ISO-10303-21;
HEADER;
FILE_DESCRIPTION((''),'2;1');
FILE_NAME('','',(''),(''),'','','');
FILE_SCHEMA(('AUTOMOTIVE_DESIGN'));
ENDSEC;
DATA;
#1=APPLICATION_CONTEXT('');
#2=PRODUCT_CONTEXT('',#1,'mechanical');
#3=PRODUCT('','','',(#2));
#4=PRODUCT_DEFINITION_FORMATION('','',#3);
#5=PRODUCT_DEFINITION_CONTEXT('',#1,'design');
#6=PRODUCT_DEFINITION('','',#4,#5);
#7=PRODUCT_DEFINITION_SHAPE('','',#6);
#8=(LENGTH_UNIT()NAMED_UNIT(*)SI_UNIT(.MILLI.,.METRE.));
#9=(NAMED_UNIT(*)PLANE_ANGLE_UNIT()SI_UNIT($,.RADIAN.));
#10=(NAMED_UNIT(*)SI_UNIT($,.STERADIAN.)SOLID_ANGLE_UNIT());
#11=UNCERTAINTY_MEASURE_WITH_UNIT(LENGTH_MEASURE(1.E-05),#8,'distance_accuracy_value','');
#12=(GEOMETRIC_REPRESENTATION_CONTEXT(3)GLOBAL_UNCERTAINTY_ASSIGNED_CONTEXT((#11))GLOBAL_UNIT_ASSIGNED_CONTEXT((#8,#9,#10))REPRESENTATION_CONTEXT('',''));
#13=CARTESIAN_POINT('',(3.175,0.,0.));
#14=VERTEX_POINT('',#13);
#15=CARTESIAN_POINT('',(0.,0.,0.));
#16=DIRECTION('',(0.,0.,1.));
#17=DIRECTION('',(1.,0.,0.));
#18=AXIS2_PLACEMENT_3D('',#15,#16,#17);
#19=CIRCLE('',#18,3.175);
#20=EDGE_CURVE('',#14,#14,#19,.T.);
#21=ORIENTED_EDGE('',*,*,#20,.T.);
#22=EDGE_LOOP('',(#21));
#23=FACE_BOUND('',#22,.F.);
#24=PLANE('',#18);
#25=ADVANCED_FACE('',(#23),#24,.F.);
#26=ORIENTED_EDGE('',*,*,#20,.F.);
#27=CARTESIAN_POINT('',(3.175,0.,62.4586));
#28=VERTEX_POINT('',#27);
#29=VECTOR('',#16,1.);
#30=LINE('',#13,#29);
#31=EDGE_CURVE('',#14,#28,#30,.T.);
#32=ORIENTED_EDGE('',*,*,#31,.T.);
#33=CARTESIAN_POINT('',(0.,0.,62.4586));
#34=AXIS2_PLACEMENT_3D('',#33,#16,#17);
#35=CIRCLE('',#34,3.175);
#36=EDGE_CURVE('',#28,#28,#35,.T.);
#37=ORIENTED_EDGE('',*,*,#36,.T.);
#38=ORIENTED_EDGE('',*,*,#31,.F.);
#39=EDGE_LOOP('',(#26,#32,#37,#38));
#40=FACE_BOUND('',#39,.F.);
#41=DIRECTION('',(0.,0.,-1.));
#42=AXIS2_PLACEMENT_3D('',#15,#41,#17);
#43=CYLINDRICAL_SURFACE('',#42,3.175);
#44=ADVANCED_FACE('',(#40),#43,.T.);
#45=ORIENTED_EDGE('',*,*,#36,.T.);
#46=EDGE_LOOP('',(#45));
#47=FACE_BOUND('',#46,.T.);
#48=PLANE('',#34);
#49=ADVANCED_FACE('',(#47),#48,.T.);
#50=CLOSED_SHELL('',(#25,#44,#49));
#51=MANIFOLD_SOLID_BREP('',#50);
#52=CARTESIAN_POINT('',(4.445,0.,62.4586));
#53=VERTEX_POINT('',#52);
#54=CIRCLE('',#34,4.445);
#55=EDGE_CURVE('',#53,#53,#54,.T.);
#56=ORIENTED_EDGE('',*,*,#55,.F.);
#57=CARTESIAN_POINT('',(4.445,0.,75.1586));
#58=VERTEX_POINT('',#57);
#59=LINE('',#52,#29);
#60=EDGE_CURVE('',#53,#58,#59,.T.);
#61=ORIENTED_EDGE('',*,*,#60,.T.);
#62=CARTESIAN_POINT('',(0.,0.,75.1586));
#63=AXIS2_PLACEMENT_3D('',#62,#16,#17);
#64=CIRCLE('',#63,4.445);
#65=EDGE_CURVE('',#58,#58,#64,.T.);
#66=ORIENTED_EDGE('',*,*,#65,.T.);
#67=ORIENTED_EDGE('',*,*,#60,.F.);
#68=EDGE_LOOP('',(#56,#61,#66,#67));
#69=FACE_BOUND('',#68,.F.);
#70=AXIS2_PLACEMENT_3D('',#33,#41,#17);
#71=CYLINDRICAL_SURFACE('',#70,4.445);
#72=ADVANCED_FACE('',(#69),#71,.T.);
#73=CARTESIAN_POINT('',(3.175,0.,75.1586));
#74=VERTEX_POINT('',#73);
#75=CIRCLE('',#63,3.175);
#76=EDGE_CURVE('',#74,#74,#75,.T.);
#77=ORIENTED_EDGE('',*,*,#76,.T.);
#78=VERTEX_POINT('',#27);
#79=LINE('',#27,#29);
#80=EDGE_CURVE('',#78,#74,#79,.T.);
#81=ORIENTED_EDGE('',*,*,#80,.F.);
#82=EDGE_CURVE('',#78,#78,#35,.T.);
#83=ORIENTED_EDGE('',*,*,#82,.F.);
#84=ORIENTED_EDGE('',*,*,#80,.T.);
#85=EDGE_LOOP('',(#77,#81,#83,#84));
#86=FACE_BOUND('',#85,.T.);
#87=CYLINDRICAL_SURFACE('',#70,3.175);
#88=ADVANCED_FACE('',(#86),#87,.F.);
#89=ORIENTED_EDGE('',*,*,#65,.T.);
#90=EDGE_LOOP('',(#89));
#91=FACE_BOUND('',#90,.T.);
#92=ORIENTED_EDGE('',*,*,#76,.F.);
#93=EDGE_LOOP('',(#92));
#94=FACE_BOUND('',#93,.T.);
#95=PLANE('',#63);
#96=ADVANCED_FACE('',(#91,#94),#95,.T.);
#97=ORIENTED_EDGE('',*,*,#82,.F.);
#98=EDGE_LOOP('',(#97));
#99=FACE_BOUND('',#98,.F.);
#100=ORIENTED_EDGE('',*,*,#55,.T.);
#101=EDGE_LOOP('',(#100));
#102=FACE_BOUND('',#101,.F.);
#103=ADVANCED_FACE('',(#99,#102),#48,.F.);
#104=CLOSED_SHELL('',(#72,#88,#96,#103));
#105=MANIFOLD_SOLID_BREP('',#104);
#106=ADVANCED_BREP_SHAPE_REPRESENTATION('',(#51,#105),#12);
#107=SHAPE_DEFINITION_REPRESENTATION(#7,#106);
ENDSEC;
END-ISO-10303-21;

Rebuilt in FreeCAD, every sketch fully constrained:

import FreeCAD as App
import Part
import Sketcher
Q = App.Units.Quantity

doc = App.newDocument("Part")
body = doc.addObject("PartDesign::Body", "Body")
body.AllowCompound = True

# Sketch on XY plane
sketch1 = body.newObject("Sketcher::SketchObject", "Sketch")
sketch1.AttachmentSupport = (doc.getObject("XY_Plane"), [""])
sketch1.MapMode = "FlatFace"
sketch1.addGeometry(Part.Circle(App.Vector(0, 0, 0), App.Vector(0, 0, 1), 3.2), False)
sketch1.addConstraint([
    Sketcher.Constraint("Coincident", 0, 3, -1, 1),
    Sketcher.Constraint("Diameter", 0, Q("0.25 in")),
])
pad1 = body.newObject("PartDesign::Pad", "Pad")
pad1.Profile = sketch1
pad1.Length = Q("2.459 in")

# Sketch on XY plane
sketch2 = body.newObject("Sketcher::SketchObject", "Sketch001")
sketch2.AttachmentSupport = (doc.getObject("XY_Plane"), [""])
sketch2.MapMode = "FlatFace"
sketch2.AttachmentOffset = App.Placement(App.Vector(0, 0, 2.459 * 25.4), App.Rotation())
sketch2.addGeometry([
    Part.Circle(App.Vector(0, 0, 0), App.Vector(0, 0, 1), 4.4),
    Part.Circle(App.Vector(0, 0, 0), App.Vector(0, 0, 1), 3.2),
], False)
sketch2.addConstraint([
    Sketcher.Constraint("Coincident", 0, 3, -1, 1),
    Sketcher.Constraint("Coincident", 1, 3, -1, 1),
    Sketcher.Constraint("Diameter", 0, Q("0.35 in")),
    Sketcher.Constraint("Diameter", 1, Q("0.25 in")),
])
pad2 = body.newObject("PartDesign::Pad", "Pad001")
pad2.Profile = sketch2
pad2.Length = Q("0.5 in")

doc.recompute()
